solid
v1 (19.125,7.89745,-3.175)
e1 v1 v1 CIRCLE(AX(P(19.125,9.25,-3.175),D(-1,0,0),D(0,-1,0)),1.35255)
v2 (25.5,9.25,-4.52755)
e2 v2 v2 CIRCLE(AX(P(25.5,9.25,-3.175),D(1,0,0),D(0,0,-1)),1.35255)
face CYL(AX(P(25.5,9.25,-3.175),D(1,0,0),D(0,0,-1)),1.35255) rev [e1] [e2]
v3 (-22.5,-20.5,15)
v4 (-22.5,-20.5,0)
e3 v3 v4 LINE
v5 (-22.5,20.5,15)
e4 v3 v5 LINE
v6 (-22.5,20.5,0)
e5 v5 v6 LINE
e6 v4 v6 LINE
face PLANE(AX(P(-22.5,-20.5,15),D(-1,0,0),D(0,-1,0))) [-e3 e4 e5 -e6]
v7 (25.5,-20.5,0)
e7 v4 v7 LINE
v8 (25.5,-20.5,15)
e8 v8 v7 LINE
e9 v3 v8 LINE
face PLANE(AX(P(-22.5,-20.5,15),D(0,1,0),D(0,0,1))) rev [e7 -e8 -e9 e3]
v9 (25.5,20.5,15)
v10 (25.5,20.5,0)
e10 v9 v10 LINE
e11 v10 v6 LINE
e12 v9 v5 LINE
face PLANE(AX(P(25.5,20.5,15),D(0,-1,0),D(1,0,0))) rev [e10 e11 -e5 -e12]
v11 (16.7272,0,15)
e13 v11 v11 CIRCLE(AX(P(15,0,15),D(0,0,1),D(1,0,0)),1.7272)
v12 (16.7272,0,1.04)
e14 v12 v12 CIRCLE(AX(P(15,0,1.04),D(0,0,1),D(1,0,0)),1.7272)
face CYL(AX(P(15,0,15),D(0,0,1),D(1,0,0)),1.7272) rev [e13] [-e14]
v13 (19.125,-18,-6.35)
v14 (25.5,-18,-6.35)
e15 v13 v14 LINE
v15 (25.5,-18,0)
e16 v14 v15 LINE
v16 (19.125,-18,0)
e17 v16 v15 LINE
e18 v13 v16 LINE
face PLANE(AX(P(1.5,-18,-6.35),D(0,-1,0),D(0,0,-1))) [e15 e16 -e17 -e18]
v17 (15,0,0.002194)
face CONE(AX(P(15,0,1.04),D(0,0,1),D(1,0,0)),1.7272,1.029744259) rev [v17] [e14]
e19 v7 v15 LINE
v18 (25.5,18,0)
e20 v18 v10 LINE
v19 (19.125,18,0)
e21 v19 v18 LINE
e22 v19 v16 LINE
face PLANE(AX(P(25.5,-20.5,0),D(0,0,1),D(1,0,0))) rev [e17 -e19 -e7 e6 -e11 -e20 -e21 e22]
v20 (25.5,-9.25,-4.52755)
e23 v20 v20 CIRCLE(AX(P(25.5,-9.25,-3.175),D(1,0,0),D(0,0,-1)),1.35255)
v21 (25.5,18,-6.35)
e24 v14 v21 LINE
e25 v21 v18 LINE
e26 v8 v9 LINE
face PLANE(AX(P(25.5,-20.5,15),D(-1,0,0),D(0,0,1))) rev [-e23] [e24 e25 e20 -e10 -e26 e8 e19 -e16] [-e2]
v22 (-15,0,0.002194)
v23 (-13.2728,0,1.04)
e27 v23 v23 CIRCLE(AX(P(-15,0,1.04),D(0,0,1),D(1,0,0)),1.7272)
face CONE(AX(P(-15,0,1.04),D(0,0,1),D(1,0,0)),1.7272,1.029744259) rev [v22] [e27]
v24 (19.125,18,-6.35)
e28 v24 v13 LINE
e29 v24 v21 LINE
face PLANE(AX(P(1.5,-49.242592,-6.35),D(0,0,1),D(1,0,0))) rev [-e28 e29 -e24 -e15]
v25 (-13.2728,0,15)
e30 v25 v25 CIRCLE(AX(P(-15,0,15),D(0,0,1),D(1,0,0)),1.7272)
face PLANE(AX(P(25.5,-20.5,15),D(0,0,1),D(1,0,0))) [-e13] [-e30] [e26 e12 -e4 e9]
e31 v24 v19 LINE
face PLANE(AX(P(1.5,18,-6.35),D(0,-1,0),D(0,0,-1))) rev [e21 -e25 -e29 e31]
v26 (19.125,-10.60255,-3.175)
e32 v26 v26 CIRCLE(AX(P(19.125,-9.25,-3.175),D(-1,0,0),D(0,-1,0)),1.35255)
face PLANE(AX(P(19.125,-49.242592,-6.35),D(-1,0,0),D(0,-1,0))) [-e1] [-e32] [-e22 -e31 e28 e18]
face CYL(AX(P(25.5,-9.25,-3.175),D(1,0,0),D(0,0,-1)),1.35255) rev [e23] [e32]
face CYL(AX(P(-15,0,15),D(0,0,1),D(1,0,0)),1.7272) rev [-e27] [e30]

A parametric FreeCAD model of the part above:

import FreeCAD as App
import Part
import Sketcher
from FreeCAD import Vector


def add_polygon(sketch, points):
    """Adds a closed chain of lines whose ends are joined by coincident constraints."""
    first, n = sketch.GeometryCount, len(points)
    for a, b in zip(points, points[1:] + points[:1]):
        sketch.addGeometry(Part.LineSegment(App.Vector(*a, 0), App.Vector(*b, 0)), False)
    for i in range(n):
        sketch.addConstraint(Sketcher.Constraint("Coincident", first + i, 2, first + (i + 1) % n, 1))

doc = App.newDocument("Part")
body = doc.addObject("PartDesign::Body", "Body")

# Sketch on XY plane
sketch1 = body.newObject("Sketcher::SketchObject", "Sketch")
sketch1.AttachmentSupport = (doc.getObject("XY_Plane"), [""])
sketch1.MapMode = "FlatFace"
add_polygon(sketch1, [(-22, 20), (-22, -20), (26, -20), (26, 20)])  # lines 0-3
sketch1.addConstraint([
    Sketcher.Constraint("Vertical", 0),
    Sketcher.Constraint("Horizontal", 1),
    Sketcher.Constraint("Vertical", 2),
    Sketcher.Constraint("Horizontal", 3),
    Sketcher.Constraint("DistanceX", 1, 1, 1, 2, 48.0),
    Sketcher.Constraint("DistanceY", 0, 2, 0, 1, 41.0),
    Sketcher.Constraint("DistanceX", 0, 2, -1, 1, 22.5),
    Sketcher.Constraint("DistanceY", 0, 2, -1, 1, 20.5),
])
pad1 = body.newObject("PartDesign::Pad", "Pad")
pad1.Profile = sketch1
pad1.Length = 15

# Sketch on XY plane
sketch2 = body.newObject("Sketcher::SketchObject", "Sketch001")
sketch2.AttachmentSupport = (doc.getObject("XY_Plane"), [""])
sketch2.MapMode = "FlatFace"
add_polygon(sketch2, [(19, 18), (19, -18), (26, -18), (26, 18)])  # lines 0-3
sketch2.addConstraint([
    Sketcher.Constraint("Vertical", 0),
    Sketcher.Constraint("Horizontal", 1),
    Sketcher.Constraint("Vertical", 2),
    Sketcher.Constraint("Horizontal", 3),
    Sketcher.Constraint("DistanceY", 0, 2, 0, 1, 36.0),
    Sketcher.Constraint("DistanceY", 0, 2, -1, 1, 18.0),
    Sketcher.Constraint("DistanceX", -1, 1, 1, 2, 25.5),
    Sketcher.Constraint("DistanceX", 1, 1, 1, 2, 6.375),
])
pad2 = body.newObject("PartDesign::Pad", "Pad001")
pad2.Profile = sketch2
pad2.Length = 6.35
pad2.Reversed = True

# Sketch on XY plane
sketch3 = body.newObject("Sketcher::SketchObject", "Sketch002")
sketch3.AttachmentSupport = (doc.getObject("XY_Plane"), [""])
sketch3.MapMode = "FlatFace"
sketch3.AttachmentOffset = App.Placement(Vector(0, 0, 15), App.Rotation())
sketch3.addGeometry([
    Part.Circle(Vector(15, 0, 0), Vector(0, 0, 1), 1.7),
    Part.Circle(Vector(-15, 0, 0), Vector(0, 0, 1), 1.7),
], False)
sketch3.addConstraint([
    Sketcher.Constraint("Equal", 0, 1),
    Sketcher.Constraint("Symmetric", 0, 3, 1, 3, -1, 1),
    Sketcher.Constraint("PointOnObject", 0, 3, -1),
    Sketcher.Constraint("DistanceX", -1, 1, 0, 3, 15.0),
    Sketcher.Constraint("Diameter", 0, 3.4544),
])
doc.recompute()
hole = body.newObject("PartDesign::Hole", "Hole")
hole.Profile = sketch3
hole.ThreadType = "None"
hole.Diameter = 3.4544
hole.DepthType = "Dimension"
hole.Depth = 13.96
hole.DrillPoint = "Angled"
hole.DrillPointAngle = 118

# Sketch on YZ plane
sketch4 = body.newObject("Sketcher::SketchObject", "Sketch003")
sketch4.AttachmentSupport = (doc.getObject("YZ_Plane"), [""])
sketch4.MapMode = "FlatFace"
sketch4.AttachmentOffset = App.Placement(Vector(0, 0, 25.5), App.Rotation())
sketch4.addGeometry([
    Part.Circle(Vector(9.2, -3.2, 0), Vector(0, 0, 1), 1.4),
    Part.Circle(Vector(-9.2, -3.2, 0), Vector(0, 0, 1), 1.4),
], False)
sketch4.addConstraint([
    Sketcher.Constraint("Equal", 0, 1),
    Sketcher.Constraint("Symmetric", 0, 3, 1, 3, -2),
    Sketcher.Constraint("Diameter", 0, 2.7051),
    Sketcher.Constraint("DistanceX", 1, 3, 0, 3, 18.5),
    Sketcher.Constraint("DistanceY", 0, 3, -1, 1, 3.175),
])
doc.recompute()
hole2 = body.newObject("PartDesign::Hole", "Hole001")
hole2.Profile = sketch4
hole2.ThreadType = "None"
hole2.Diameter = 2.7051
hole2.DepthType = "ThroughAll"

doc.recompute()
